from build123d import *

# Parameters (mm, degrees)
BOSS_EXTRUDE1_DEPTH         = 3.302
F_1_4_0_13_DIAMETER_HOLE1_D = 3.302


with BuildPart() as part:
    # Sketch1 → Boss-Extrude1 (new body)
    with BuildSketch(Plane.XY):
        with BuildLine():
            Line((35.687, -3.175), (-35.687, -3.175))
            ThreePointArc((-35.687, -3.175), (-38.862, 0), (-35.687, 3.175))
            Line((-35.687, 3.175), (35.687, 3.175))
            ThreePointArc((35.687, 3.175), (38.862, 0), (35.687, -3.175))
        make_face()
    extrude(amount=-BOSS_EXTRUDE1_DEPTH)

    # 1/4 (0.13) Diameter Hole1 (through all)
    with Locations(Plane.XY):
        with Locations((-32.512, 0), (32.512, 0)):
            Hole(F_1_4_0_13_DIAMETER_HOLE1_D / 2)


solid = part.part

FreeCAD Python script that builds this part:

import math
import FreeCAD as App
import Part
import Sketcher

V = App.Vector
Q = App.Units.Quantity

doc = App.newDocument("Part")
body = doc.addObject("PartDesign::Body", "Body")

# Sketch on XY plane
sketch1 = body.newObject("Sketcher::SketchObject", "Sketch")
sketch1.AttachmentSupport = (doc.getObject("XY_Plane"), [""])
sketch1.MapMode = "FlatFace"
sketch1.addGeometry([
    Part.LineSegment(V(-35.7, -3.2, 0), V(35.7, -3.2, 0)),
    Part.ArcOfCircle(Part.Circle(V(35.7, 0, 0), V(0, 0, 1), 3.2), math.radians(-90), math.radians(90)),
    Part.LineSegment(V(35.7, 3.2, 0), V(-35.7, 3.2, 0)),
    Part.ArcOfCircle(Part.Circle(V(-35.7, 0, 0), V(0, 0, 1), 3.2), math.radians(90), math.radians(270)),
], False)
sketch1.addConstraint([
    Sketcher.Constraint("Tangent", 0, 2, 1, 1),
    Sketcher.Constraint("Tangent", 1, 2, 2, 1),
    Sketcher.Constraint("Tangent", 2, 2, 3, 1),
    Sketcher.Constraint("Tangent", 3, 2, 0, 1),
    Sketcher.Constraint("Horizontal", 0),
    Sketcher.Constraint("Horizontal", 2),
    Sketcher.Constraint("Symmetric", 1, 3, 3, 3, -1, 1),
    Sketcher.Constraint("Radius", 1, Q("0.125 in")),
    Sketcher.Constraint("DistanceX", 0, 1, 0, 2, Q("2.81 in")),
])
pad1 = body.newObject("PartDesign::Pad", "Pad")
pad1.Profile = sketch1
pad1.Length = Q("0.13 in")
pad1.Reversed = True

# Sketch on XY plane
sketch2 = body.newObject("Sketcher::SketchObject", "Sketch001")
sketch2.AttachmentSupport = (doc.getObject("XY_Plane"), [""])
sketch2.MapMode = "FlatFace"
sketch2.addGeometry([
    Part.Circle(V(-32.5, 0, 0), V(0, 0, 1), 1.7),
    Part.Circle(V(32.5, 0, 0), V(0, 0, 1), 1.7),
], False)
sketch2.addConstraint([
    Sketcher.Constraint("Equal", 0, 1),
    Sketcher.Constraint("Symmetric", 0, 3, 1, 3, -1, 1),
    Sketcher.Constraint("PointOnObject", 0, 3, -1),
    Sketcher.Constraint("Diameter", 0, Q("0.13 in")),
    Sketcher.Constraint("DistanceX", 0, 3, -1, 1, Q("1.28 in")),
])
doc.recompute()
hole = body.newObject("PartDesign::Hole", "Hole")
hole.Profile = sketch2
hole.ThreadType = "None"
hole.Diameter = Q("0.13 in")
hole.DepthType = "ThroughAll"

doc.recompute()
